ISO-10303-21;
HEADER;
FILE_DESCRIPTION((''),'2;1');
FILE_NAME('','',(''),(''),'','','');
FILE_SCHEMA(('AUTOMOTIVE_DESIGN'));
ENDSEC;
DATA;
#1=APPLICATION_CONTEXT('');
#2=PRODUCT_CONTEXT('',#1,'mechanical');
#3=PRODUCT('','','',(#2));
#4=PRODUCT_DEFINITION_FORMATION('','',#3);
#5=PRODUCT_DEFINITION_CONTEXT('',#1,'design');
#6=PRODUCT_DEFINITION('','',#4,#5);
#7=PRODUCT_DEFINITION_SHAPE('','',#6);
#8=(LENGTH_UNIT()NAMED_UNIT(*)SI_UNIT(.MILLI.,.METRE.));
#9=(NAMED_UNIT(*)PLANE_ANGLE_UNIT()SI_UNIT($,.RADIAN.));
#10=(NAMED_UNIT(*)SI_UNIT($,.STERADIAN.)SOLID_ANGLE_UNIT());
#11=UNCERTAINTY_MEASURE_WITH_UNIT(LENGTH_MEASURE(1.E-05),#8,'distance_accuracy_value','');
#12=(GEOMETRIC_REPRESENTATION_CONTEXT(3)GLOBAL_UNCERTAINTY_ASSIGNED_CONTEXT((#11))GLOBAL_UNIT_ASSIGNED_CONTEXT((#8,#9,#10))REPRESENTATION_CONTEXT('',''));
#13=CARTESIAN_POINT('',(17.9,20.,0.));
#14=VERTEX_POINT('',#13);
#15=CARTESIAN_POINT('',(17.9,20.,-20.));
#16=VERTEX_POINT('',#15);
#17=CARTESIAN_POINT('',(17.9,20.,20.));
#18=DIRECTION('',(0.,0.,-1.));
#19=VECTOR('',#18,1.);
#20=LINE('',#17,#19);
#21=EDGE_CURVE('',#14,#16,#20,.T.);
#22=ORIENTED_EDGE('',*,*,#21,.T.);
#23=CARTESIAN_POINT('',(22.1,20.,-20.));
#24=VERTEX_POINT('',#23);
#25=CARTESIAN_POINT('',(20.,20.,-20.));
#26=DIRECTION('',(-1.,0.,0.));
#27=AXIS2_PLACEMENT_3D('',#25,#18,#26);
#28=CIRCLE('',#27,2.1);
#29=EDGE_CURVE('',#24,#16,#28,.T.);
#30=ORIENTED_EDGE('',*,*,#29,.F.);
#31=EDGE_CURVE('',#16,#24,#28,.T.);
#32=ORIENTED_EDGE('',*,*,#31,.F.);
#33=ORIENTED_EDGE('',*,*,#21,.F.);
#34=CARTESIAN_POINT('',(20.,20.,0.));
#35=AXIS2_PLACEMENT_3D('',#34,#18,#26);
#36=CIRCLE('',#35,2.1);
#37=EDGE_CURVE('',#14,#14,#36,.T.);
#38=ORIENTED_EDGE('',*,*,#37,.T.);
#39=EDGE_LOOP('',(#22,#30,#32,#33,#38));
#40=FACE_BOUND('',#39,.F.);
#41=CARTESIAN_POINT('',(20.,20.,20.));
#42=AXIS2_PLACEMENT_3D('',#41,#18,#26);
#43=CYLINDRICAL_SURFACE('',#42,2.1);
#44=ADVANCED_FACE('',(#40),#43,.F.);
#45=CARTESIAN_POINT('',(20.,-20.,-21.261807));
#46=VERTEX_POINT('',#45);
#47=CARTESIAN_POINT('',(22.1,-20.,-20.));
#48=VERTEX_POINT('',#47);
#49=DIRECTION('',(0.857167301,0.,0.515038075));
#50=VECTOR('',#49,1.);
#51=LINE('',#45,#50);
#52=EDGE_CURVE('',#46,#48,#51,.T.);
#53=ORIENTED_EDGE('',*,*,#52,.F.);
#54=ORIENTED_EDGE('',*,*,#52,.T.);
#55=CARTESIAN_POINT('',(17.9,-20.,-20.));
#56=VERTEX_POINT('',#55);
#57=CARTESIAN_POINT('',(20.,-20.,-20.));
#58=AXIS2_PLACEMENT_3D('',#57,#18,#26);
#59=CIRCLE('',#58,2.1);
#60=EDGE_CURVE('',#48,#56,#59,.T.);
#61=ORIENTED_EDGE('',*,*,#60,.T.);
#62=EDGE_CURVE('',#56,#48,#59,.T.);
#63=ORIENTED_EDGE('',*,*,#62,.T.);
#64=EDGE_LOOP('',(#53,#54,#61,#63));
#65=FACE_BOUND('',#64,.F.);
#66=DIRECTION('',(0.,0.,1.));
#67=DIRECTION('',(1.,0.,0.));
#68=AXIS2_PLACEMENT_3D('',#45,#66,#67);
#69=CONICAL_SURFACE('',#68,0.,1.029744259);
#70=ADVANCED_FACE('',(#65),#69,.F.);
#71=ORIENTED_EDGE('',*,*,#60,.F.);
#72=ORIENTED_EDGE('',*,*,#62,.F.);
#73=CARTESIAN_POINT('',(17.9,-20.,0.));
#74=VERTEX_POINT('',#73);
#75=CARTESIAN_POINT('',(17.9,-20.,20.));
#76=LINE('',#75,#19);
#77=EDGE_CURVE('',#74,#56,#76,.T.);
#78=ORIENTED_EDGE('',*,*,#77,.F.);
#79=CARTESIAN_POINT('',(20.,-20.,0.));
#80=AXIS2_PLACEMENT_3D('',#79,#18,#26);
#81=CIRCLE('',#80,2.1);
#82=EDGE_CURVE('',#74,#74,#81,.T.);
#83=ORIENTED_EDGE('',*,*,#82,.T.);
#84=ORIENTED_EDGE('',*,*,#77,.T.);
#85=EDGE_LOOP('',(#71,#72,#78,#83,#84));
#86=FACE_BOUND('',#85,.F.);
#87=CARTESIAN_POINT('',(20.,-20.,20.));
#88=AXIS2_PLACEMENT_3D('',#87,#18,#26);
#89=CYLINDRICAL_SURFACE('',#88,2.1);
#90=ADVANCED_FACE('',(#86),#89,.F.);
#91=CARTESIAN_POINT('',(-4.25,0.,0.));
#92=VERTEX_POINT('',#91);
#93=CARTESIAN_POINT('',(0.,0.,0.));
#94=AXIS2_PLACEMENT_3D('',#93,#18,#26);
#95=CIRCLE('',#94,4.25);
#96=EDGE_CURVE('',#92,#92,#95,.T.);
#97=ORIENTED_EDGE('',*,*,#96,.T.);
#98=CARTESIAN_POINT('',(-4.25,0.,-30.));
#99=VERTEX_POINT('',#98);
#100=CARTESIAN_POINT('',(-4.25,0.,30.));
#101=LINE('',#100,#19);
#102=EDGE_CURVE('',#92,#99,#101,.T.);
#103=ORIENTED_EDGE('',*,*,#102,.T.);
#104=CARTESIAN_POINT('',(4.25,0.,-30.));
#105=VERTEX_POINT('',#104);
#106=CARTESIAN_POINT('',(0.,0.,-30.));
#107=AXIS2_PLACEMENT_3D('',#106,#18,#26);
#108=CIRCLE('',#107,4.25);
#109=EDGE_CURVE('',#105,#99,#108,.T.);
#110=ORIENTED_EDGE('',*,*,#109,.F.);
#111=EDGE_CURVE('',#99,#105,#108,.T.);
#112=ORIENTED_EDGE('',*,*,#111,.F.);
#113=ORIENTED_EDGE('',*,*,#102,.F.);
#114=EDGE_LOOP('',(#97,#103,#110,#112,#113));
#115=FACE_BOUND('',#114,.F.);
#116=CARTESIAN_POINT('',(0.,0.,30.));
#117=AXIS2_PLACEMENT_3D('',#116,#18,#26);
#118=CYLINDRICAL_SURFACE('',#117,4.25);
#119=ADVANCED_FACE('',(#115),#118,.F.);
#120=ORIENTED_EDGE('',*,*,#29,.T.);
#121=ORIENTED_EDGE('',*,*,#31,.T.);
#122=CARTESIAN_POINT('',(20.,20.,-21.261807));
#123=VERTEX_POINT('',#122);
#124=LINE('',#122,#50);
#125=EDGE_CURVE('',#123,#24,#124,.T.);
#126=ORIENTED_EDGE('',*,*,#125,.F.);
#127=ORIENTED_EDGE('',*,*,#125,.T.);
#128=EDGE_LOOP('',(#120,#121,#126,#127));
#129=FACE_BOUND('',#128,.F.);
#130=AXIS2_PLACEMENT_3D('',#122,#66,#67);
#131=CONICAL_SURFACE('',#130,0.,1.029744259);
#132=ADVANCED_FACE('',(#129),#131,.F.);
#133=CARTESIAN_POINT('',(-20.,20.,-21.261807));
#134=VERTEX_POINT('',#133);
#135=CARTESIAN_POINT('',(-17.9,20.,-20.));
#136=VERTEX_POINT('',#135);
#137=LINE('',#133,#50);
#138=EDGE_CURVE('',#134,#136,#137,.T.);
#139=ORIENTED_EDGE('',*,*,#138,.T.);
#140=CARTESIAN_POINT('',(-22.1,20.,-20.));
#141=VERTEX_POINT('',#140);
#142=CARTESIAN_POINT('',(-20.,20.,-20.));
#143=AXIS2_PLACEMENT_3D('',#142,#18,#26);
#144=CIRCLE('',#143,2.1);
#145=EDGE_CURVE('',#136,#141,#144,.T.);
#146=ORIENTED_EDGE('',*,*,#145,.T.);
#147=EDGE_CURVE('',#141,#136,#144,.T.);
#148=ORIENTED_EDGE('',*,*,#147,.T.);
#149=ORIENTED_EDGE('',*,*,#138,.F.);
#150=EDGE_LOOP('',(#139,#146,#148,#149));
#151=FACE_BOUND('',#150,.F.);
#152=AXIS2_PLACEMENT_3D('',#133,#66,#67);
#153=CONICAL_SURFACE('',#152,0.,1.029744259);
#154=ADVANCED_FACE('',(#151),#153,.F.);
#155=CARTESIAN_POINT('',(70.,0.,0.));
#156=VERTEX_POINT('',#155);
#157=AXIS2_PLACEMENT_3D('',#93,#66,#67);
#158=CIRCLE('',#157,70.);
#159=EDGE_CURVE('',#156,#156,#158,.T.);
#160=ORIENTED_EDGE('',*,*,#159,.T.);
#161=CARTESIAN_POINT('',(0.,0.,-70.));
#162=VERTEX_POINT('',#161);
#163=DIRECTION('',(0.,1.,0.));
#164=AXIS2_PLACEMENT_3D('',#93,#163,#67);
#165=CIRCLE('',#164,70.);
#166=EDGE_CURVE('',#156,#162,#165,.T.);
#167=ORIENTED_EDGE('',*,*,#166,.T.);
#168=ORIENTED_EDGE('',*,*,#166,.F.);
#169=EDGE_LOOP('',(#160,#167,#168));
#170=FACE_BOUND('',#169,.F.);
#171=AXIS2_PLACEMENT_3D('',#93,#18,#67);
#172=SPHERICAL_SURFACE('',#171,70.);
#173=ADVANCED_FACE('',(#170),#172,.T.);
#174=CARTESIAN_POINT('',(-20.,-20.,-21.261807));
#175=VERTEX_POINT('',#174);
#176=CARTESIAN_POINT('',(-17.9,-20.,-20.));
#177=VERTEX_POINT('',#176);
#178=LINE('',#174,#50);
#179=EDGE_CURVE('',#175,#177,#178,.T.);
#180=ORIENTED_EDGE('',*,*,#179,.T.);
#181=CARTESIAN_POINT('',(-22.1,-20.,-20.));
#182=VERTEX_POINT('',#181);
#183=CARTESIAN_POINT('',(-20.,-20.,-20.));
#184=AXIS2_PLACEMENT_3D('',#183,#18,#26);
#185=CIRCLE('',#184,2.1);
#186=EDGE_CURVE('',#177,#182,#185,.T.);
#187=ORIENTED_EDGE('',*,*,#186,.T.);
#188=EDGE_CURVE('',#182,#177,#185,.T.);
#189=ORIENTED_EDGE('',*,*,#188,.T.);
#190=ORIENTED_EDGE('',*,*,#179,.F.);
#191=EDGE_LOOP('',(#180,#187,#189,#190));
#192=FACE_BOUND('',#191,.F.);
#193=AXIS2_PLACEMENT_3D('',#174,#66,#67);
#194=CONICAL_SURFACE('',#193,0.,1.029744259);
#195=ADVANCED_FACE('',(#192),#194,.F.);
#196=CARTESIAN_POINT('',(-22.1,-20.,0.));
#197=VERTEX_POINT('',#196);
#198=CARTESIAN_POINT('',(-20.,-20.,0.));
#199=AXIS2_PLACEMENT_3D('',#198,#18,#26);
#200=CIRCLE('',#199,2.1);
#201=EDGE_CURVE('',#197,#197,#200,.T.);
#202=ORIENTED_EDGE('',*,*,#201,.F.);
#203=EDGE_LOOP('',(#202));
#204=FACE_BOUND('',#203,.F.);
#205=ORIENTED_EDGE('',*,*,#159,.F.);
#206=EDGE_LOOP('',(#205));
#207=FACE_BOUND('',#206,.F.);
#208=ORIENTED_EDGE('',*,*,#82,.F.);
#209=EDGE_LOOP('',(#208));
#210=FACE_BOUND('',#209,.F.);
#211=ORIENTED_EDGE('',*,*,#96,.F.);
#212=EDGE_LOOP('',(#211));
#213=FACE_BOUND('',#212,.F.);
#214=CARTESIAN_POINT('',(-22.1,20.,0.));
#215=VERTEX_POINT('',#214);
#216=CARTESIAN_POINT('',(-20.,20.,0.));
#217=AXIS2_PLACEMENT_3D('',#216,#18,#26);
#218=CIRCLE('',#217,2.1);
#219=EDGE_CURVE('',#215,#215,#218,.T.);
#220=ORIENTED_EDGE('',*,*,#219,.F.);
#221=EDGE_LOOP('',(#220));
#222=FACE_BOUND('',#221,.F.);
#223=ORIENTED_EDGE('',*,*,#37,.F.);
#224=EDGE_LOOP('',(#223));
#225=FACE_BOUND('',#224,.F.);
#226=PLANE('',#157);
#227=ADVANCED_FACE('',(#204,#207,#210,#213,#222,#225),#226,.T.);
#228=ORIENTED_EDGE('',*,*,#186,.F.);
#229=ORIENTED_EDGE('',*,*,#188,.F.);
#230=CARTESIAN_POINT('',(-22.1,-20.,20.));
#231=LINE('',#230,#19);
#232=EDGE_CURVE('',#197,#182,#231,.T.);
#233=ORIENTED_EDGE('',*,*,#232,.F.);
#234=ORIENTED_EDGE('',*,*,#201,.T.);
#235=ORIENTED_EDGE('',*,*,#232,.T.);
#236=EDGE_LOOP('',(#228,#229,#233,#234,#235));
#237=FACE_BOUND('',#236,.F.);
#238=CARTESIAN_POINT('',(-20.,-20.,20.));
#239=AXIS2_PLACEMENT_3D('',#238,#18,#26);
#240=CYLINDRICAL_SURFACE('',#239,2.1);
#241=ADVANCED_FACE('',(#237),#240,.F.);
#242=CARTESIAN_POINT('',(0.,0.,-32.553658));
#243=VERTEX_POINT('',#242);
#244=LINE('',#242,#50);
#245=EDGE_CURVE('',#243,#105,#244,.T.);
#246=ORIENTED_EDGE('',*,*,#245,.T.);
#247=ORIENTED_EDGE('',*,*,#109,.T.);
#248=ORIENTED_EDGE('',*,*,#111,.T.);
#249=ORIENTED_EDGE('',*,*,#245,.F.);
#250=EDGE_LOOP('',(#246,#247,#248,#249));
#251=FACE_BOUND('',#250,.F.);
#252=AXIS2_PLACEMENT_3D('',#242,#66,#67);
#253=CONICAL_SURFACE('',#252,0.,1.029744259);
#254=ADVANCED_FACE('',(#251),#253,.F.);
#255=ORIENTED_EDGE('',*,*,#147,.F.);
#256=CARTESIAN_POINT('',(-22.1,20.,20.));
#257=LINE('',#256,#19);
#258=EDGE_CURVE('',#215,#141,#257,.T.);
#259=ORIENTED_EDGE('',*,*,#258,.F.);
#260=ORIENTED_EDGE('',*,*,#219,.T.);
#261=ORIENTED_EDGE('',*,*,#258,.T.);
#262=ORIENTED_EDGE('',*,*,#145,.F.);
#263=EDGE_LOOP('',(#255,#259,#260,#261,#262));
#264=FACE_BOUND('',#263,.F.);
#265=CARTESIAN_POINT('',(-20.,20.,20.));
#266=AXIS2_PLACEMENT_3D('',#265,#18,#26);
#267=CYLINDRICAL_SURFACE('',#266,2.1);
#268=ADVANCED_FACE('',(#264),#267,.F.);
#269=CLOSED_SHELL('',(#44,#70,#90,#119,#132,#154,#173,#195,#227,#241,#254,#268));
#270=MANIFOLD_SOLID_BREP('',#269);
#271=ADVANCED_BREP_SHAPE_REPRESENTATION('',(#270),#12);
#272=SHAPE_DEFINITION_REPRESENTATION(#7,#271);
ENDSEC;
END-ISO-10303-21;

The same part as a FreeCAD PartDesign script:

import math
import FreeCAD as App
import Part
import Sketcher

V = App.Vector
Q = App.Units.Quantity

doc = App.newDocument("Part")
body = doc.addObject("PartDesign::Body", "Body")

# Sketch on XZ plane
sketch1 = body.newObject("Sketcher::SketchObject", "Sketch")
sketch1.AttachmentSupport = (doc.getObject("XZ_Plane"), [""])
sketch1.MapMode = "FlatFace"
sketch1.addGeometry(Part.LineSegment(V(0, -70, 0), V(0, 0, 0)), False)
sketch1.addGeometry(Part.LineSegment(V(0, 0, 0), V(70, 0, 0)), False)
sketch1.addGeometry(Part.ArcOfCircle(Part.Circle(V(0, 0, 0), V(0, 0, 1), 70), math.radians(-90), math.radians(0)), False)
sketch1.addConstraint(Sketcher.Constraint("Coincident", 0, 2, 1, 1))
sketch1.addConstraint(Sketcher.Constraint("Coincident", 1, 2, 2, 2))
sketch1.addConstraint(Sketcher.Constraint("Coincident", 2, 1, 0, 1))
sketch1.addConstraint(Sketcher.Constraint("Vertical", 0))
sketch1.addConstraint(Sketcher.Constraint("Horizontal", 1))
sketch1.addConstraint(Sketcher.Constraint("Coincident", 2, 3, -1, 1))
sketch1.addConstraint(Sketcher.Constraint("Coincident", 0, 2, -1, 1))
sketch1.addConstraint(Sketcher.Constraint("Radius", 2, Q("70 mm")))
revolution = body.newObject("PartDesign::Revolution", "Revolution")
revolution.Profile = sketch1
revolution.ReferenceAxis = (sketch1, ["V_Axis"])
revolution.Angle = 360

# Sketch on XY plane
sketch2 = body.newObject("Sketcher::SketchObject", "Sketch001")
sketch2.AttachmentSupport = (doc.getObject("XY_Plane"), [""])
sketch2.MapMode = "FlatFace"
sketch2.addGeometry(Part.Circle(V(0, 0, 0), V(0, 0, 1), 4.2), False)
sketch2.addConstraint(Sketcher.Constraint("Coincident", 0, 3, -1, 1))
sketch2.addConstraint(Sketcher.Constraint("Diameter", 0, Q("8.5 mm")))
doc.recompute()
hole = body.newObject("PartDesign::Hole", "Hole")
hole.Profile = sketch2
hole.ThreadType = "None"
hole.Diameter = 8.5
hole.DepthType = "Dimension"
hole.Depth = 30
hole.DrillPoint = "Angled"
hole.DrillPointAngle = 118

# Sketch on XY plane
sketch3 = body.newObject("Sketcher::SketchObject", "Sketch002")
sketch3.AttachmentSupport = (doc.getObject("XY_Plane"), [""])
sketch3.MapMode = "FlatFace"
sketch3.addGeometry(Part.Circle(V(-20, 20, 0), V(0, 0, 1), 2.1), False)
sketch3.addGeometry(Part.Circle(V(20, 20, 0), V(0, 0, 1), 2.1), False)
sketch3.addGeometry(Part.Circle(V(20, -20, 0), V(0, 0, 1), 2.1), False)
sketch3.addGeometry(Part.Circle(V(-20, -20, 0), V(0, 0, 1), 2.1), False)
sketch3.addConstraint(Sketcher.Constraint("Equal", 0, 1))
sketch3.addConstraint(Sketcher.Constraint("Equal", 1, 2))
sketch3.addConstraint(Sketcher.Constraint("Equal", 2, 3))
sketch3.addConstraint(Sketcher.Constraint("Symmetric", 0, 3, 2, 3, -1, 1))
sketch3.addConstraint(Sketcher.Constraint("Symmetric", 1, 3, 3, 3, -1, 1))
sketch3.addConstraint(Sketcher.Constraint("Symmetric", 0, 3, 1, 3, -2))
sketch3.addConstraint(Sketcher.Constraint("Diameter", 0, Q("4.2 mm")))
sketch3.addConstraint(Sketcher.Constraint("DistanceX", 0, 3, -1, 1, Q("20 mm")))
sketch3.addConstraint(Sketcher.Constraint("DistanceY", -1, 1, 0, 3, Q("20 mm")))
doc.recompute()
hole2 = body.newObject("PartDesign::Hole", "Hole001")
hole2.Profile = sketch3
hole2.ThreadType = "None"
hole2.Diameter = 4.2
hole2.DepthType = "Dimension"
hole2.Depth = 20
hole2.DrillPoint = "Angled"
hole2.DrillPointAngle = 118

doc.recompute()
